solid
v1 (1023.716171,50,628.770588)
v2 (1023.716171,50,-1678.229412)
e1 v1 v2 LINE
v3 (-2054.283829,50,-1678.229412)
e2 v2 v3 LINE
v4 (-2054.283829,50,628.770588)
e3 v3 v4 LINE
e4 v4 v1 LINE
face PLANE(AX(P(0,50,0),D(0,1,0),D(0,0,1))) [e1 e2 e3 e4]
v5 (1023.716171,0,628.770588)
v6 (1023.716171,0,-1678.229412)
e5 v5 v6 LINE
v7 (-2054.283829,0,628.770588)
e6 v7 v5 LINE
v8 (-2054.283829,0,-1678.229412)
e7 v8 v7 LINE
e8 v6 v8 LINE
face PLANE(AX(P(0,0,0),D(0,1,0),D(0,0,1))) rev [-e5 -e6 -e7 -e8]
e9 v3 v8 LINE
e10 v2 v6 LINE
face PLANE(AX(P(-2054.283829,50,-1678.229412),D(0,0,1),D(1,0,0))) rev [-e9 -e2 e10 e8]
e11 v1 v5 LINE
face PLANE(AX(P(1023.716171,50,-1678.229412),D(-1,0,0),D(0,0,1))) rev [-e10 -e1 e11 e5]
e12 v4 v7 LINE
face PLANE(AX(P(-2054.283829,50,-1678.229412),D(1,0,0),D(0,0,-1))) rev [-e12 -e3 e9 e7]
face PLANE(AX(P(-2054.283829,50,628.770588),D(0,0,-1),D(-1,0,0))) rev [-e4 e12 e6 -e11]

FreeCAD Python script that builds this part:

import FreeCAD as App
import Part
import Sketcher

V = App.Vector


def add_polygon(sketch, points):
    """Adds a closed chain of lines whose ends are joined by coincident constraints."""
    first, n = sketch.GeometryCount, len(points)
    for a, b in zip(points, points[1:] + points[:1]):
        sketch.addGeometry(Part.LineSegment(App.Vector(*a, 0), App.Vector(*b, 0)), False)
    for i in range(n):
        sketch.addConstraint(Sketcher.Constraint("Coincident", first + i, 2, first + (i + 1) % n, 1))

doc = App.newDocument("Part")
body = doc.addObject("PartDesign::Body", "Body")

sketch1 = doc.addObject("Sketcher::SketchObject", "Sketch")
body.addObject(sketch1)
sketch1.AttachmentSupport = (doc.XZ_Plane, [""])
sketch1.MapMode = "FlatFace"
add_polygon(sketch1, [(-2054, -1678), (-2054, 629), (1024, 629), (1024, -1678)])
sketch1.addConstraint([
    Sketcher.Constraint("Vertical", 0),
    Sketcher.Constraint("Horizontal", 1),
    Sketcher.Constraint("Vertical", 2),
    Sketcher.Constraint("Horizontal", 3),
    Sketcher.Constraint("DistanceX", 1, 1, 1, 2, 3078.0),
    Sketcher.Constraint("DistanceY", 0, 1, 0, 2, 2307.0),
    Sketcher.Constraint("DistanceX", 0, 2, -1, 1, 2054.283829),
    Sketcher.Constraint("DistanceY", -1, 1, 0, 2, 628.770588),
])
pad1 = doc.addObject("PartDesign::Pad", "Pad")
body.addObject(pad1)
pad1.Profile = sketch1
pad1.Length = 50
pad1.Reversed = True

doc.recompute()
